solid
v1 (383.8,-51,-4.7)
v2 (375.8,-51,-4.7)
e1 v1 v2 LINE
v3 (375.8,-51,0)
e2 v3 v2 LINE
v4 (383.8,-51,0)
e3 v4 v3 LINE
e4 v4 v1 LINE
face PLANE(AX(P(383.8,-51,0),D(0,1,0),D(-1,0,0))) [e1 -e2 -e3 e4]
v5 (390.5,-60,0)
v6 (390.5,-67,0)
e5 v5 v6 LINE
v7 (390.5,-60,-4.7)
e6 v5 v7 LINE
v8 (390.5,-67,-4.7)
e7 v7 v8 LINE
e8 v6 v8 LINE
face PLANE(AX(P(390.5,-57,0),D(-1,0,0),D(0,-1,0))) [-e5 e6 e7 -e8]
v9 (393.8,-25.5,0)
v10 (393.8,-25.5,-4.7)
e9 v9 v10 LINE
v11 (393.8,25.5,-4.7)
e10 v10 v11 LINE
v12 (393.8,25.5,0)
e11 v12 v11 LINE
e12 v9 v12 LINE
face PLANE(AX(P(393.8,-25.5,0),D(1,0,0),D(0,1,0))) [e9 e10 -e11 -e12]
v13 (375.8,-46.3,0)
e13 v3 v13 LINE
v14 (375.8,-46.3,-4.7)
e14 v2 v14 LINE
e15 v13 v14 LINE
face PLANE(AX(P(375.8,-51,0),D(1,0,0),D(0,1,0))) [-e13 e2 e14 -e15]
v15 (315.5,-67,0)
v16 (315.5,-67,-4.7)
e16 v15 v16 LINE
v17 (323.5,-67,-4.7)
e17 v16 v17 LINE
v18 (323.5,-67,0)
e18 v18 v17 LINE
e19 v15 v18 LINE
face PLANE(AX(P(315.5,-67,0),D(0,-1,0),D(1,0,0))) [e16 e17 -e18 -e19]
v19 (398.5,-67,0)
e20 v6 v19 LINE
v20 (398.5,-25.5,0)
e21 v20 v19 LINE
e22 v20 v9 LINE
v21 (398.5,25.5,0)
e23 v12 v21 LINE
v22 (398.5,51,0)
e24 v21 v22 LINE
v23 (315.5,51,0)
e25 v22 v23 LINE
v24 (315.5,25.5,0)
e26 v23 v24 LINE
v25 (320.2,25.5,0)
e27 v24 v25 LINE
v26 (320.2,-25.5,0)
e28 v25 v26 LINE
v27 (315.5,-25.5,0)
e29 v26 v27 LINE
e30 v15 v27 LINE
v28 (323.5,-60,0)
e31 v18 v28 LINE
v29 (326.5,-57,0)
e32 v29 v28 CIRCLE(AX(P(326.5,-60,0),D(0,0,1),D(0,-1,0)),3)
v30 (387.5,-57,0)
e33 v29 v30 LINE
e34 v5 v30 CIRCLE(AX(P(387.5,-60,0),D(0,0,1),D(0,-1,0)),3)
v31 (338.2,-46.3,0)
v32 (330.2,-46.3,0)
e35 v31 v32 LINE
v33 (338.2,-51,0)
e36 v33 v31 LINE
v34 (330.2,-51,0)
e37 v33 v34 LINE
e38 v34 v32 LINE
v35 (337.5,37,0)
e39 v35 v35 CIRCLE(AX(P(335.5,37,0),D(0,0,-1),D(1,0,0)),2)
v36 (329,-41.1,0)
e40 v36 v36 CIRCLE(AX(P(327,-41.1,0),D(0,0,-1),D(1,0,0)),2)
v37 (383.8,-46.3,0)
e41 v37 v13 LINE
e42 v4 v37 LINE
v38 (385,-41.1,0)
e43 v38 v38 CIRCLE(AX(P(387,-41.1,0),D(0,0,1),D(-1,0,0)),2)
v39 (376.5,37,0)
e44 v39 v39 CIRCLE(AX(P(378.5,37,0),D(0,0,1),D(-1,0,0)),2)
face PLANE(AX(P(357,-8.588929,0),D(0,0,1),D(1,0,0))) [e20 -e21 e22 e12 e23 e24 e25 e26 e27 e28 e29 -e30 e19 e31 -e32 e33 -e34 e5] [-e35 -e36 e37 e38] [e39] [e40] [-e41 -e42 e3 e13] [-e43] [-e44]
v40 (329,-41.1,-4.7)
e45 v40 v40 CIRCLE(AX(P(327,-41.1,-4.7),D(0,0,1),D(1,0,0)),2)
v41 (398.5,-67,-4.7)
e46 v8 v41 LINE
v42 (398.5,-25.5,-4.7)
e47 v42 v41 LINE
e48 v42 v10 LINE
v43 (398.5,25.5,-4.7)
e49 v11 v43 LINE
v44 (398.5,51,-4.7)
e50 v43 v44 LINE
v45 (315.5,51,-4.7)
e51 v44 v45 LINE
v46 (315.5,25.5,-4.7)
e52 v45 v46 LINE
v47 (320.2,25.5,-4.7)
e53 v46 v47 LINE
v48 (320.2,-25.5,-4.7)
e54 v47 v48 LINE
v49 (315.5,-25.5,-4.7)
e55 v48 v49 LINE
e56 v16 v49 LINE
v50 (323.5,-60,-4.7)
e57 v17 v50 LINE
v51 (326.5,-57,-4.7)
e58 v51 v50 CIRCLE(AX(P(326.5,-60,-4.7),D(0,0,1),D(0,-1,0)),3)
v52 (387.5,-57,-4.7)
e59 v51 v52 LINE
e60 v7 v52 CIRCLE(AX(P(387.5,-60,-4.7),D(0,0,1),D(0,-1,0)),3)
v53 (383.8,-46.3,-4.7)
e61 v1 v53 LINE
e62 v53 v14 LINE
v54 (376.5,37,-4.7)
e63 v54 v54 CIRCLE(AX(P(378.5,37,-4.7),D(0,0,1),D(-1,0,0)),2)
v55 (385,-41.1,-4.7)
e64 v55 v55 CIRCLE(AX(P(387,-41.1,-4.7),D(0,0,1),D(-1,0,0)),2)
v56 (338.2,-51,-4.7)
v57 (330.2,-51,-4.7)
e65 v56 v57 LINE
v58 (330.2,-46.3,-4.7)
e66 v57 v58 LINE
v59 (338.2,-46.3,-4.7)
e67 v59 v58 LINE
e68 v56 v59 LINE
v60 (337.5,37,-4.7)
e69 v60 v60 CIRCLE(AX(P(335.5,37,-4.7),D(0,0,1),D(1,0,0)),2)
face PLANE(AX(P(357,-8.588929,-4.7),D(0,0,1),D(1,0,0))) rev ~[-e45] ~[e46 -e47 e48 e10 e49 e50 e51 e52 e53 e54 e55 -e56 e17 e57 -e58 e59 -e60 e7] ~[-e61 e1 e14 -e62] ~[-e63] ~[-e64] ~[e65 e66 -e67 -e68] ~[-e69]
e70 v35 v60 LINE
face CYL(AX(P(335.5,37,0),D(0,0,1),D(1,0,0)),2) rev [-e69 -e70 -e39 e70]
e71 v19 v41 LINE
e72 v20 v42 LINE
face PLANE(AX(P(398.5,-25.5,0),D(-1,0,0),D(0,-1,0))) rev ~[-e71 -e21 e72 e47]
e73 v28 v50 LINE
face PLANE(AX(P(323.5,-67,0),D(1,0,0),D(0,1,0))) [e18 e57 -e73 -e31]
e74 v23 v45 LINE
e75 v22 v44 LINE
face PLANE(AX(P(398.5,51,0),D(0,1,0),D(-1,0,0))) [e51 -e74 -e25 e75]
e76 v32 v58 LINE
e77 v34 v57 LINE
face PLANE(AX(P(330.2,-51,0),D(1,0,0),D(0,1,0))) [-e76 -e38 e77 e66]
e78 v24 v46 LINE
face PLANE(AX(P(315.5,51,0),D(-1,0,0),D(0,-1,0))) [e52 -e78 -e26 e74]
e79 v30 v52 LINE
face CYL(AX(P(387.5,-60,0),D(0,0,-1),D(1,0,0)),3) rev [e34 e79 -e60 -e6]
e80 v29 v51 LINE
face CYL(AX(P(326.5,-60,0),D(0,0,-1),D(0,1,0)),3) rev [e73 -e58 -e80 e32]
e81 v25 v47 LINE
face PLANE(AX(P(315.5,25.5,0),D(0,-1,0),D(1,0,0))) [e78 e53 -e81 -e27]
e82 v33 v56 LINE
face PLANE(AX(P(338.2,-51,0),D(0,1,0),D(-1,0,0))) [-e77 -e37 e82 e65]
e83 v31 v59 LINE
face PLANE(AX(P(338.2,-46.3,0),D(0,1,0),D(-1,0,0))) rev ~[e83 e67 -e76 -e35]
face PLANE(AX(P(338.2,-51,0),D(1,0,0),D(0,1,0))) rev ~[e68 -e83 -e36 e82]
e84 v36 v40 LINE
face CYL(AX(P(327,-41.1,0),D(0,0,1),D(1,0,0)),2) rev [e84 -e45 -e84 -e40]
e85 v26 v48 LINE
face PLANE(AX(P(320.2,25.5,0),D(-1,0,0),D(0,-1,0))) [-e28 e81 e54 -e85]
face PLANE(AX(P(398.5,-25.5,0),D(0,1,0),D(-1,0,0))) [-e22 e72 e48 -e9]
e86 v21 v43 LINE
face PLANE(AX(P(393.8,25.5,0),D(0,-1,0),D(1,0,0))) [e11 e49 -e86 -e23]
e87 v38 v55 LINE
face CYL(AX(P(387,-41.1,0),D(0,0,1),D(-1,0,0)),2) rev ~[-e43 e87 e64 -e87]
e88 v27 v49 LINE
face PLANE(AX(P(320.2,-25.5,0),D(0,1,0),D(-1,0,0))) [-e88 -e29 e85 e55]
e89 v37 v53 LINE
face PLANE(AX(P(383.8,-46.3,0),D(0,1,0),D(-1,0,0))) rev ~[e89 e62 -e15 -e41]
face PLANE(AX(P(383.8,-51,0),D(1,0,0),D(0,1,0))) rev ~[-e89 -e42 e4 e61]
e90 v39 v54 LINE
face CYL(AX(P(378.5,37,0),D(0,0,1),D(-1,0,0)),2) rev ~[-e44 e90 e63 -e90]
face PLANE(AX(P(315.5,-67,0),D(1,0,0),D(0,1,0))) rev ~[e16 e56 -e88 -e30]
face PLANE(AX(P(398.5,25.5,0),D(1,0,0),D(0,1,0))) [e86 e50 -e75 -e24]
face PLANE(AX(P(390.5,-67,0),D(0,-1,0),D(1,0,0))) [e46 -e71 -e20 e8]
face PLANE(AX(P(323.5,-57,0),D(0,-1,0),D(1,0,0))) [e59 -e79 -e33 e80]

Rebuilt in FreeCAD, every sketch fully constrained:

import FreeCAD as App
import Part
import Sketcher


def edges_at(feature, points):
    """Names of the edges that pass closest to the given points."""
    edges = feature.Shape.Edges
    near = lambda p: min(range(len(edges)), key=lambda i: edges[i].distToShape(Part.Vertex(*p))[0])
    return sorted({f"Edge{near(p) + 1}" for p in points})

doc = App.newDocument("Part")
params = doc.addObject("Spreadsheet::Sheet", "Params")
for row, (alias, value) in enumerate([
    ("sketch1_width", "8 mm"),
    ("sketch1_width2", "67 mm"),
    ("sketch1_height", "10 mm"),
    ("sketch1_height2", "51 mm"),
    ("sketch1_width3", "4.7 mm"),
    ("pad1_length", "4.7 mm"),
    ("fillet_radius", "3 mm"),
    ("sketch2_diameter", "4 mm"),
], start=1):
    params.set(f"A{row}", alias)
    params.set(f"B{row}", "=" + value)
    params.setAlias(f"B{row}", alias)

body = doc.addObject("PartDesign::Body", "Body")

# Sketch on XZ plane
sketch1 = body.newObject("Sketcher::SketchObject", "Sketch")
sketch1.AttachmentSupport = (doc.getObject("XZ_Plane"), [""])
sketch1.MapMode = "FlatFace"
sketch1.addGeometry([
    Part.LineSegment(App.Vector(-41.5, -25.5, 0), App.Vector(-41.5, -67, 0)),  # 0
    Part.LineSegment(App.Vector(-41.5, -67, 0), App.Vector(-33.5, -67, 0)),  # 1
    Part.LineSegment(App.Vector(-33.5, -67, 0), App.Vector(-33.5, -57, 0)),  # 2
    Part.LineSegment(App.Vector(-33.5, -57, 0), App.Vector(33.5, -57, 0)),  # 3
    Part.LineSegment(App.Vector(33.5, -57, 0), App.Vector(33.5, -67, 0)),  # 4
    Part.LineSegment(App.Vector(33.5, -67, 0), App.Vector(41.5, -67, 0)),  # 5
    Part.LineSegment(App.Vector(41.5, -67, 0), App.Vector(41.5, -25.5, 0)),  # 6
    Part.LineSegment(App.Vector(41.5, -25.5, 0), App.Vector(36.8, -25.5, 0)),  # 7
    Part.LineSegment(App.Vector(36.8, -25.5, 0), App.Vector(36.8, 25.5, 0)),  # 8
    Part.LineSegment(App.Vector(36.8, 25.5, 0), App.Vector(41.5, 25.5, 0)),  # 9
    Part.LineSegment(App.Vector(41.5, 25.5, 0), App.Vector(41.5, 51, 0)),  # 10
    Part.LineSegment(App.Vector(41.5, 51, 0), App.Vector(-41.5, 51, 0)),  # 11
    Part.LineSegment(App.Vector(-41.5, 51, 0), App.Vector(-41.5, 25.5, 0)),  # 12
    Part.LineSegment(App.Vector(-41.5, 25.5, 0), App.Vector(-36.8, 25.5, 0)),  # 13
    Part.LineSegment(App.Vector(-36.8, 25.5, 0), App.Vector(-36.8, -25.5, 0)),  # 14
    Part.LineSegment(App.Vector(-36.8, -25.5, 0), App.Vector(-41.5, -25.5, 0)),  # 15
    Part.LineSegment(App.Vector(18.8, -51, 0), App.Vector(18.8, -46.3, 0)),  # 16
    Part.LineSegment(App.Vector(18.8, -46.3, 0), App.Vector(26.8, -46.3, 0)),  # 17
    Part.LineSegment(App.Vector(26.8, -46.3, 0), App.Vector(26.8, -51, 0)),  # 18
    Part.LineSegment(App.Vector(26.8, -51, 0), App.Vector(18.8, -51, 0)),  # 19
    Part.LineSegment(App.Vector(-26.8, -51, 0), App.Vector(-26.8, -46.3, 0)),  # 20
    Part.LineSegment(App.Vector(-26.8, -46.3, 0), App.Vector(-18.8, -46.3, 0)),  # 21
    Part.LineSegment(App.Vector(-18.8, -46.3, 0), App.Vector(-18.8, -51, 0)),  # 22
    Part.LineSegment(App.Vector(-18.8, -51, 0), App.Vector(-26.8, -51, 0)),  # 23
], False)
sketch1.addConstraint([
    Sketcher.Constraint("Coincident", 0, 2, 1, 1),
    Sketcher.Constraint("Coincident", 1, 2, 2, 1),
    Sketcher.Constraint("Coincident", 2, 2, 3, 1),
    Sketcher.Constraint("Coincident", 3, 2, 4, 1),
    Sketcher.Constraint("Coincident", 4, 2, 5, 1),
    Sketcher.Constraint("Coincident", 5, 2, 6, 1),
    Sketcher.Constraint("Coincident", 6, 2, 7, 1),
    Sketcher.Constraint("Coincident", 7, 2, 8, 1),
    Sketcher.Constraint("Coincident", 8, 2, 9, 1),
    Sketcher.Constraint("Coincident", 9, 2, 10, 1),
    Sketcher.Constraint("Coincident", 10, 2, 11, 1),
    Sketcher.Constraint("Coincident", 11, 2, 12, 1),
    Sketcher.Constraint("Coincident", 12, 2, 13, 1),
    Sketcher.Constraint("Coincident", 13, 2, 14, 1),
    Sketcher.Constraint("Coincident", 14, 2, 15, 1),
    Sketcher.Constraint("Coincident", 15, 2, 0, 1),
    Sketcher.Constraint("Coincident", 16, 2, 17, 1),
    Sketcher.Constraint("Coincident", 17, 2, 18, 1),
    Sketcher.Constraint("Coincident", 18, 2, 19, 1),
    Sketcher.Constraint("Coincident", 19, 2, 16, 1),
    Sketcher.Constraint("Coincident", 20, 2, 21, 1),
    Sketcher.Constraint("Coincident", 21, 2, 22, 1),
    Sketcher.Constraint("Coincident", 22, 2, 23, 1),
    Sketcher.Constraint("Coincident", 23, 2, 20, 1),
    Sketcher.Constraint("Vertical", 0),
    Sketcher.Constraint("Horizontal", 1),
    Sketcher.Constraint("Vertical", 2),
    Sketcher.Constraint("Horizontal", 3),
    Sketcher.Constraint("Vertical", 4),
    Sketcher.Constraint("Horizontal", 5),
    Sketcher.Constraint("Vertical", 6),
    Sketcher.Constraint("Horizontal", 7),
    Sketcher.Constraint("Vertical", 8),
    Sketcher.Constraint("Horizontal", 9),
    Sketcher.Constraint("Vertical", 10),
    Sketcher.Constraint("Horizontal", 11),
    Sketcher.Constraint("Vertical", 12),
    Sketcher.Constraint("Horizontal", 13),
    Sketcher.Constraint("Vertical", 14),
    Sketcher.Constraint("Horizontal", 15),
    Sketcher.Constraint("Vertical", 16),
    Sketcher.Constraint("Horizontal", 17),
    Sketcher.Constraint("Vertical", 18),
    Sketcher.Constraint("Horizontal", 19),
    Sketcher.Constraint("Vertical", 20),
    Sketcher.Constraint("Horizontal", 21),
    Sketcher.Constraint("Vertical", 22),
    Sketcher.Constraint("Horizontal", 23),
    Sketcher.Constraint("Symmetric", 6, 2, 12, 2, -1, 1),
    Sketcher.Constraint("Symmetric", 8, 2, 14, 2, -1, 1),
    Sketcher.Constraint("Symmetric", 1, 2, 4, 2, -2),
    Sketcher.Constraint("Symmetric", 9, 2, 12, 2, -2),
    Sketcher.Constraint("Symmetric", 17, 2, 20, 2, -2),
    Sketcher.Constraint("Symmetric", 19, 2, 22, 2, -2),
    Sketcher.Constraint("Vertical", 0, 2, 11, 2),
    Sketcher.Constraint("Equal", 5, 17),
    Sketcher.Constraint("Equal", 15, 16),
    Sketcher.Constraint("DistanceX", 1, 1, 1, 2, 8.0),
    Sketcher.Constraint("DistanceX", 3, 1, 3, 2, 67.0),
    Sketcher.Constraint("DistanceY", 2, 1, 2, 2, 10.0),
    Sketcher.Constraint("DistanceY", 8, 1, 8, 2, 51.0),
    Sketcher.Constraint("DistanceX", 7, 2, 7, 1, 4.7),
    Sketcher.Constraint("DistanceY", 0, 2, 0, 1, 41.5),
    Sketcher.Constraint("DistanceY", 10, 1, 10, 2, 25.5),
    Sketcher.Constraint("DistanceY", 18, 2, -1, 1, 51.0),
    Sketcher.Constraint("DistanceX", 16, 2, 7, 2, 18.0),
])
sketch1.setExpression("Constraints[57]", "Params.sketch1_width")
sketch1.setExpression("Constraints[58]", "Params.sketch1_width2")
sketch1.setExpression("Constraints[59]", "Params.sketch1_height")
sketch1.setExpression("Constraints[60]", "Params.sketch1_height2")
sketch1.setExpression("Constraints[61]", "Params.sketch1_width3")
pad1 = body.newObject("PartDesign::Pad", "Pad")
pad1.Profile = sketch1
pad1.setExpression("Length", "Params.pad1_length")
doc.recompute()

fillet = body.newObject("PartDesign::Fillet", "Fillet")
fillet.Base = (pad1, edges_at(pad1, [(-33.5, -2.35, -57), (33.5, -2.35, -57)]))
fillet.setExpression("Radius", "Params.fillet_radius")

# Sketch on XZ plane
sketch2 = body.newObject("Sketcher::SketchObject", "Sketch001")
sketch2.AttachmentSupport = (doc.getObject("XZ_Plane"), [""])
sketch2.MapMode = "FlatFace"
sketch2.addGeometry([
    Part.Circle(App.Vector(-21.5, 37, 0), App.Vector(0, 0, 1), 2),
    Part.Circle(App.Vector(-30, -41.1, 0), App.Vector(0, 0, 1), 2),
], False)
sketch2.addConstraint([
    Sketcher.Constraint("Equal", 0, 1),
    Sketcher.Constraint("Diameter", 0, 4.0),
    Sketcher.Constraint("DistanceY", -1, 1, 0, 3, 37.0),
    Sketcher.Constraint("DistanceX", 1, 3, -1, 1, 30.0),
    Sketcher.Constraint("DistanceX", 0, 3, -1, 1, 21.5),
    Sketcher.Constraint("DistanceY", 1, 3, -1, 1, 41.1),
])
sketch2.setExpression("Constraints[1]", "Params.sketch2_diameter")
pocket1 = body.newObject("PartDesign::Pocket", "Pocket")
pocket1.Profile = sketch2
pocket1.Type = "ThroughAll"
pocket1.Reversed = True
doc.recompute()

mirrored = body.newObject("PartDesign::Mirrored", "Mirrored")
mirrored.Originals = [pocket1]
mirrored.MirrorPlane = (doc.getObject("YZ_Plane"), [""])
body.Tip = mirrored
body2 = doc.addObject("PartDesign::Body", "Body001")
doc.recompute()

body.Placement = App.Placement(App.Vector(0, 41.5, 48), App.Rotation(App.Vector(0, 0, 1), 0))
boolean = body2.newObject("PartDesign::Boolean", "Boolean")
boolean.Type = "Fuse"
boolean.addObjects([body])
body3 = doc.addObject("PartDesign::Body", "Body002")
doc.recompute()

body2.Placement = App.Placement(App.Vector(0, -41.5, -48), App.Rotation(App.Vector(0, 0, 1), 0))
boolean2 = body3.newObject("PartDesign::Boolean", "Boolean001")
boolean2.Type = "Fuse"
boolean2.addObjects([body2])
body4 = doc.addObject("PartDesign::Body", "Body003")
doc.recompute()

body3.Placement = App.Placement(App.Vector(0, 0, 0), App.Rotation(App.Vector(1, 0, 0), 90))
boolean3 = body4.newObject("PartDesign::Boolean", "Boolean002")
boolean3.Type = "Fuse"
boolean3.addObjects([body3])
body5 = doc.addObject("PartDesign::Body", "Body004")
doc.recompute()

body4.Placement = App.Placement(App.Vector(357, 0, 0), App.Rotation(App.Vector(0, 0, 1), 180))
boolean4 = body5.newObject("PartDesign::Boolean", "Boolean003")
boolean4.Type = "Fuse"
boolean4.addObjects([body4])

doc.recompute()
